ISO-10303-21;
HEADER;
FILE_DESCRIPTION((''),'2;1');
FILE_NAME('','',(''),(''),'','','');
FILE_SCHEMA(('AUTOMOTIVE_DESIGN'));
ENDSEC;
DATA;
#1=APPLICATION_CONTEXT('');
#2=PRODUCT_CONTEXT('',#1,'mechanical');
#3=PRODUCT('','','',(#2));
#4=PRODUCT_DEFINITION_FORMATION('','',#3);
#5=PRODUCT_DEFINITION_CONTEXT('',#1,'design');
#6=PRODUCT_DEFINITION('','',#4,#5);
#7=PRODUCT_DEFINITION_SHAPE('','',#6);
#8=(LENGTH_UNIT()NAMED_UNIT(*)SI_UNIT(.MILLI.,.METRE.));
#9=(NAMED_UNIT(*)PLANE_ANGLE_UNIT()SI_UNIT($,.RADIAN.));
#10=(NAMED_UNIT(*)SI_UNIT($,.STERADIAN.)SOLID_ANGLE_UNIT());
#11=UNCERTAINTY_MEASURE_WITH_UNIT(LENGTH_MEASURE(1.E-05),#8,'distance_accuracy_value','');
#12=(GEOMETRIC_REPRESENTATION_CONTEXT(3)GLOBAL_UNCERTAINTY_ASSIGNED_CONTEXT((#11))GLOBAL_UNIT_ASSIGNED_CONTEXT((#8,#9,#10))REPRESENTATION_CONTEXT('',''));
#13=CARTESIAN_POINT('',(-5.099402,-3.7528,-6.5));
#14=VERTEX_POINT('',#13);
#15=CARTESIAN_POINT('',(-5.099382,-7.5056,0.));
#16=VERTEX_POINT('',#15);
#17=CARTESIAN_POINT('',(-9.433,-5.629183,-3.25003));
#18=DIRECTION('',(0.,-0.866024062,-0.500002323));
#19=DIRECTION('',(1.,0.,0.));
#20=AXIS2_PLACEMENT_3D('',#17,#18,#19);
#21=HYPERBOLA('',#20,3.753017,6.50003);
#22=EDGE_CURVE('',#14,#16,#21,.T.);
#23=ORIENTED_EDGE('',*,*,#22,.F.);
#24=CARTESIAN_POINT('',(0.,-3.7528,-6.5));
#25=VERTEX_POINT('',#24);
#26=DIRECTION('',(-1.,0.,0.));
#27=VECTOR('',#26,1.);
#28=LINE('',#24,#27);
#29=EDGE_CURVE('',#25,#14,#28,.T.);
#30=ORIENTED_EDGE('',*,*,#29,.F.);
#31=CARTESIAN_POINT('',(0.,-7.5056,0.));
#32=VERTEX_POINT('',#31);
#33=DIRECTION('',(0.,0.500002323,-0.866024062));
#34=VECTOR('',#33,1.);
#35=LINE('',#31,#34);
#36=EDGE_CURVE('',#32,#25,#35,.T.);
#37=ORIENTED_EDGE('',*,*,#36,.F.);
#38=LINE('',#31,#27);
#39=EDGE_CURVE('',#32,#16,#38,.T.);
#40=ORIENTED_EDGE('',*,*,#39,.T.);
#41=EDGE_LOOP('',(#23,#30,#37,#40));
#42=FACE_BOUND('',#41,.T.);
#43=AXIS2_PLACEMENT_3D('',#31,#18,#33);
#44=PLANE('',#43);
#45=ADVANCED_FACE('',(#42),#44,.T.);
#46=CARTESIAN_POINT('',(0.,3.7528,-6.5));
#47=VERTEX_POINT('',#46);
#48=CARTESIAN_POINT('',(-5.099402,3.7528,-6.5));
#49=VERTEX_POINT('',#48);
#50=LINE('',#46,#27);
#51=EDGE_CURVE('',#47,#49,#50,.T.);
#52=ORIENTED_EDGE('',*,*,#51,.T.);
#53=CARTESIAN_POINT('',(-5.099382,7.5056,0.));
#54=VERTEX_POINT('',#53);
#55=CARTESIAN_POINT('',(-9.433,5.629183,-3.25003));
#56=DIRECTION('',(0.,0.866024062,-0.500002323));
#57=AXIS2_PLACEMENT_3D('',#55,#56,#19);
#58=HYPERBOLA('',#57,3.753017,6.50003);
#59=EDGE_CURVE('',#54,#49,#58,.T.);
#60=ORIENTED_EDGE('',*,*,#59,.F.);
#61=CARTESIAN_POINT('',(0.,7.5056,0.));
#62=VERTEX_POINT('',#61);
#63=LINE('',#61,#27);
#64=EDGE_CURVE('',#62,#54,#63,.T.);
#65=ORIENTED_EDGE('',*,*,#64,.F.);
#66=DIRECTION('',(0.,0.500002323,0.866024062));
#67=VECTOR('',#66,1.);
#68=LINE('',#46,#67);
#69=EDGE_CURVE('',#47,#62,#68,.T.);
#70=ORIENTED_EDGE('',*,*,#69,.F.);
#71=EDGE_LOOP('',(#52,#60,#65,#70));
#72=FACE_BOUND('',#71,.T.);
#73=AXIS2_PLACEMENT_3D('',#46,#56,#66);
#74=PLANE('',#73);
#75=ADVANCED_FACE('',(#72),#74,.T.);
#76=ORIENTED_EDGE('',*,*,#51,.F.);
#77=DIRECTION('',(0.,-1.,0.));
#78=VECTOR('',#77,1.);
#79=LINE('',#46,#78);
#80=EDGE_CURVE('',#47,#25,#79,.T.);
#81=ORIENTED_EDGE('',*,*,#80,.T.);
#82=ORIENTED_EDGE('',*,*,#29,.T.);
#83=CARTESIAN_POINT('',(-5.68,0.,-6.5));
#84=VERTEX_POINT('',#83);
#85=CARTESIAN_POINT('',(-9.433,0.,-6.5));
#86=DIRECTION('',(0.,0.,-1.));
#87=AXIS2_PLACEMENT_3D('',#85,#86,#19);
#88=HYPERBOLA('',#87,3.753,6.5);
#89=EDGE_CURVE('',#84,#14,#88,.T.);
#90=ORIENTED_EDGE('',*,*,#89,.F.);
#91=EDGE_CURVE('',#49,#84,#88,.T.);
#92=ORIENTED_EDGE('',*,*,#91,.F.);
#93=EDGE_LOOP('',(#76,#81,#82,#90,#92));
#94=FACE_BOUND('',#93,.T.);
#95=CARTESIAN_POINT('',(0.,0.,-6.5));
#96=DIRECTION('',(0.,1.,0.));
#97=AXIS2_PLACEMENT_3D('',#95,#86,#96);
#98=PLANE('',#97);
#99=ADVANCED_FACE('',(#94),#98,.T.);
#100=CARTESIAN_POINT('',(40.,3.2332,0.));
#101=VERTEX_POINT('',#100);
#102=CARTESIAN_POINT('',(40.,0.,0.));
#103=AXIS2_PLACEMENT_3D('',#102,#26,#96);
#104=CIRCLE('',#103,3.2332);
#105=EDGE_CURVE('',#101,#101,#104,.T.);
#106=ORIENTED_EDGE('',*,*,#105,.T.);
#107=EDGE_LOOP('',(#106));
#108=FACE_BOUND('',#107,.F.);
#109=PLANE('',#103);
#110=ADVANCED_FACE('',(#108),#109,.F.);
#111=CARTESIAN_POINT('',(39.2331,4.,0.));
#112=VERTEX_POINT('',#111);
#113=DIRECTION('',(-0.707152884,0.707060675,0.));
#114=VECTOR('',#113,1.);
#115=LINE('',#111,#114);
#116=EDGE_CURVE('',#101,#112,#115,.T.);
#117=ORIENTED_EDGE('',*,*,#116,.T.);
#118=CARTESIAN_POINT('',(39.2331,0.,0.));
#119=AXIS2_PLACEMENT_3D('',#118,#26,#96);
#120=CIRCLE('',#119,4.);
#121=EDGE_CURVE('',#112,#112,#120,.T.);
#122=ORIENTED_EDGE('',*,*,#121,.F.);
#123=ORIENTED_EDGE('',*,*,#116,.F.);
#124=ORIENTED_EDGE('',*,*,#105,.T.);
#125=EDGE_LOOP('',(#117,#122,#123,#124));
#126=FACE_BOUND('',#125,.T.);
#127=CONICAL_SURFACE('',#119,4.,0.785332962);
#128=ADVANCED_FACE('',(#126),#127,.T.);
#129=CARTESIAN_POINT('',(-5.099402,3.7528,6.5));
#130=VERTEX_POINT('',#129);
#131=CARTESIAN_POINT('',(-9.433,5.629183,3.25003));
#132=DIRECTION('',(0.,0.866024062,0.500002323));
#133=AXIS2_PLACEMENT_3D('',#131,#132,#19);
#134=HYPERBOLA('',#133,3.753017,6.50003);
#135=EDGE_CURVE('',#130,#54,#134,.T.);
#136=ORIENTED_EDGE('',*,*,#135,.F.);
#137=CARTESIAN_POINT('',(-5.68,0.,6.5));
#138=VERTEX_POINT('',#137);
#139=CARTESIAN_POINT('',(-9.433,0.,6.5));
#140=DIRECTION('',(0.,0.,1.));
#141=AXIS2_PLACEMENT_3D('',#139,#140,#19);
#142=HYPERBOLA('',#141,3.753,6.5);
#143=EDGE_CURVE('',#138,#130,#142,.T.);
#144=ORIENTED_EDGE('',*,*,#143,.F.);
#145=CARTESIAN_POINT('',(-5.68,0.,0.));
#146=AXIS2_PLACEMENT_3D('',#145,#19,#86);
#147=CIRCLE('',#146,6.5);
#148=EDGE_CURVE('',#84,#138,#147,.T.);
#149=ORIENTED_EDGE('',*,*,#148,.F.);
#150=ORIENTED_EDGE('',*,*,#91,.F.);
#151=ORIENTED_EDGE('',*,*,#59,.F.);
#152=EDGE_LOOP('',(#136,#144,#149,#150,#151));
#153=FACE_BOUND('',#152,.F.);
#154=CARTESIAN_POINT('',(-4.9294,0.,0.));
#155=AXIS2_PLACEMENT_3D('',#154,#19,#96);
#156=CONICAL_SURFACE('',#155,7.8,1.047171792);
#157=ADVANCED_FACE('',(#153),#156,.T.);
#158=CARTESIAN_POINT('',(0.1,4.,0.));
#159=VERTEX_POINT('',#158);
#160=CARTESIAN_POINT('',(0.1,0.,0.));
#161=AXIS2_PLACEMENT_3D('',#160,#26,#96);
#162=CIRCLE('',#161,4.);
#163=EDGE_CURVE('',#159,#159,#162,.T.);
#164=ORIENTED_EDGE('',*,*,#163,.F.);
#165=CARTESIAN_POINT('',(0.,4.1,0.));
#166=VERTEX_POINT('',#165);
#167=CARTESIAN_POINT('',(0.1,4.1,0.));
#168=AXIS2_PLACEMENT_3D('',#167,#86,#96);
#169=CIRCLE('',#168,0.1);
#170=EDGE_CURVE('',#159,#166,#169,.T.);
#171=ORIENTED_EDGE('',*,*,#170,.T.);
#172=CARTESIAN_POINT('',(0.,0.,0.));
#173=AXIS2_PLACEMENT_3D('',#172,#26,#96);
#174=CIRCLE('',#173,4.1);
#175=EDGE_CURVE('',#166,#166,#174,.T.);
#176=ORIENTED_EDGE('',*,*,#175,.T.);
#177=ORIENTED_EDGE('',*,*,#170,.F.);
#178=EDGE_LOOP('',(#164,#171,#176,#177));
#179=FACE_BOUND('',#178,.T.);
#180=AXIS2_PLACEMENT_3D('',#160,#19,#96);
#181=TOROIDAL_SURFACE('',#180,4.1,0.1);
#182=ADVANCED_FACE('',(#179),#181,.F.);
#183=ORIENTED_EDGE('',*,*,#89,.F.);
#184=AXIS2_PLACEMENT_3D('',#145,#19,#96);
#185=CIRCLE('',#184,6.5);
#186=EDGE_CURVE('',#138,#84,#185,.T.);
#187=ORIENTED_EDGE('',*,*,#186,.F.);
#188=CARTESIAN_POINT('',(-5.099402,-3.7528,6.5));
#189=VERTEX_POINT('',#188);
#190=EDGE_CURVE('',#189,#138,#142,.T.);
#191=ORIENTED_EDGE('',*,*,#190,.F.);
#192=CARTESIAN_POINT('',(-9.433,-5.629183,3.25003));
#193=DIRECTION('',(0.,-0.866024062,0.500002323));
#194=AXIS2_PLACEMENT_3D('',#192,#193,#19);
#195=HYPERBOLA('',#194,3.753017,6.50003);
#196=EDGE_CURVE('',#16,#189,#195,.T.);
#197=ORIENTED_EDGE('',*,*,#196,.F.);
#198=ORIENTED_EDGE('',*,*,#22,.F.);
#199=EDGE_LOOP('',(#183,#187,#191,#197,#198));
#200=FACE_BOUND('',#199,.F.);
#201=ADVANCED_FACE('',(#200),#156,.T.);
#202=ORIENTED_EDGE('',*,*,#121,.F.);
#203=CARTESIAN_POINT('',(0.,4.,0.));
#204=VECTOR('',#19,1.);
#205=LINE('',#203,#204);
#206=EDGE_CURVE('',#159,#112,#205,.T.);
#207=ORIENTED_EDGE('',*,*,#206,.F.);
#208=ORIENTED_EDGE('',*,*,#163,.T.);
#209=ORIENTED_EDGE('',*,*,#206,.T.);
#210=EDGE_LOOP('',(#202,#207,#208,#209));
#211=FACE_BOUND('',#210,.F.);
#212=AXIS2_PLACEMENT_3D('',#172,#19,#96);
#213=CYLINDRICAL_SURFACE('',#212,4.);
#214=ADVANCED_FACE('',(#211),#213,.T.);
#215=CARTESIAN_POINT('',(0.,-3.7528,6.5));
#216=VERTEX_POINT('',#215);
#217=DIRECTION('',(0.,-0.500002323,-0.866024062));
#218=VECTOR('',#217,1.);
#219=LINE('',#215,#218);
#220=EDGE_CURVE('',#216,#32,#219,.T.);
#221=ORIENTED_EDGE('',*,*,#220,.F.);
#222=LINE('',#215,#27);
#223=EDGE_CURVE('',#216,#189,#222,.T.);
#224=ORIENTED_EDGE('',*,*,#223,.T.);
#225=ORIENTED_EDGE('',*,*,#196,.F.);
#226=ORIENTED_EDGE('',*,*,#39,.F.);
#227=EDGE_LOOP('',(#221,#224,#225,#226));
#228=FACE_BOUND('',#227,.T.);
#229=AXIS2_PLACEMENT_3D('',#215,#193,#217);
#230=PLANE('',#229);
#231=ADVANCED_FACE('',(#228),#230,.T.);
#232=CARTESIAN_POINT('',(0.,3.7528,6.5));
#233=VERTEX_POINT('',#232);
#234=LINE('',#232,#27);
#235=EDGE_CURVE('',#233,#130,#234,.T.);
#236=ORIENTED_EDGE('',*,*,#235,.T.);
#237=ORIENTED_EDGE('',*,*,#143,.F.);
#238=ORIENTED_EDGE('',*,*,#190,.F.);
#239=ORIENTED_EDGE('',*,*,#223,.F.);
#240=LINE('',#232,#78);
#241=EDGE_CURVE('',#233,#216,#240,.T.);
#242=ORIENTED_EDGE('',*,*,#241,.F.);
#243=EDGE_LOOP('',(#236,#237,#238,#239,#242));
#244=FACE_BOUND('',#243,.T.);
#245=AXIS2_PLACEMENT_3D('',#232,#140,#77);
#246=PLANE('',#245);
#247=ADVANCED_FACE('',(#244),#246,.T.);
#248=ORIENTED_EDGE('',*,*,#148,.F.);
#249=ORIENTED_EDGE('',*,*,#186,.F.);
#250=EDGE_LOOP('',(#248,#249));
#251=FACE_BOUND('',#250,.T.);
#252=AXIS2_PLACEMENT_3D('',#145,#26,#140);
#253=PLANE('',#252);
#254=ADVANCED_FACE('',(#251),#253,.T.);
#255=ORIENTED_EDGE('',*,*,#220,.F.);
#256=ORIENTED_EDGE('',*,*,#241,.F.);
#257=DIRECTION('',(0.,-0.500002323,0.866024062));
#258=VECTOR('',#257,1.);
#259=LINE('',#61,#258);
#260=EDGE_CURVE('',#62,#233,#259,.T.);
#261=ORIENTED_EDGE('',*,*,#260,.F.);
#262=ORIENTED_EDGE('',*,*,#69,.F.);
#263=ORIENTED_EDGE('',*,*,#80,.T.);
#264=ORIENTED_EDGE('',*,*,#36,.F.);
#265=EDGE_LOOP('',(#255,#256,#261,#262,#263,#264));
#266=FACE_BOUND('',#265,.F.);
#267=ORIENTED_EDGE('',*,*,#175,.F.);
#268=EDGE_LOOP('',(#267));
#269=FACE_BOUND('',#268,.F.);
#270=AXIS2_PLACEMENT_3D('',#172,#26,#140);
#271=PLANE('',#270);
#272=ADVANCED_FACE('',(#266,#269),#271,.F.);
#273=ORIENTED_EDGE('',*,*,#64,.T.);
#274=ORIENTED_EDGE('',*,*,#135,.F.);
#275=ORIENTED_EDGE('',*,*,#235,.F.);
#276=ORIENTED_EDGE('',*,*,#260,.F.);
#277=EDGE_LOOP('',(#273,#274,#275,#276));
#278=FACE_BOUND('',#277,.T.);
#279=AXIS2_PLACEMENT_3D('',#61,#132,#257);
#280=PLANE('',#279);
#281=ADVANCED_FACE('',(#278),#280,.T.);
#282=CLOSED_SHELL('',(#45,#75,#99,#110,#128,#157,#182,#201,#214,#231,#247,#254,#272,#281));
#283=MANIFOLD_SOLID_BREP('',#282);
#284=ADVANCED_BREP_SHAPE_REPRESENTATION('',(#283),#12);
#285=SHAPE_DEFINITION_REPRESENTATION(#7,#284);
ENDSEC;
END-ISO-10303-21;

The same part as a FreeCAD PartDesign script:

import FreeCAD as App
import Part
import Sketcher
Q = App.Units.Quantity


def edges_at(feature, points):
    """Names of the edges that pass closest to the given points."""
    edges = feature.Shape.Edges
    near = lambda p: min(range(len(edges)), key=lambda i: edges[i].distToShape(Part.Vertex(*p))[0])
    return sorted({f"Edge{near(p) + 1}" for p in points})

doc = App.newDocument("Part")
params = doc.addObject("Spreadsheet::Sheet", "Params")
for row, (alias, value) in enumerate([
    ("sketch1_width", "40 mm"),
    ("sketch1_height", "4 mm"),
    ("revolution_angle", "360 deg"),
    ("pad1_length", "5.68 mm"),
    ("sketch3_height", "1.3 mm"),
    ("groove_angle", "360 deg"),
    ("chamfer_size", "0.7668 mm"),
    ("chamfer_size2", "0.7669 mm"),
    ("fillet_radius", "0.1 mm"),
], start=1):
    params.set(f"A{row}", alias)
    params.set(f"B{row}", "=" + value)
    params.setAlias(f"B{row}", alias)

body = doc.addObject("PartDesign::Body", "Body")

sketch1 = body.newObject("Sketcher::SketchObject", "Sketch")
sketch1.AttachmentSupport = (doc.getObject("XY_Plane"), [""])
sketch1.MapMode = "FlatFace"
sketch1.addGeometry(Part.LineSegment(App.Vector(40, 4, 0), App.Vector(0, 4, 0)), False)
sketch1.addGeometry(Part.LineSegment(App.Vector(0, 4, 0), App.Vector(0, 0, 0)), False)
sketch1.addGeometry(Part.LineSegment(App.Vector(0, 0, 0), App.Vector(40, 0, 0)), False)
sketch1.addGeometry(Part.LineSegment(App.Vector(40, 0, 0), App.Vector(40, 4, 0)), False)
sketch1.addConstraint(Sketcher.Constraint("Coincident", 0, 2, 1, 1))
sketch1.addConstraint(Sketcher.Constraint("Coincident", 1, 2, 2, 1))
sketch1.addConstraint(Sketcher.Constraint("Coincident", 2, 2, 3, 1))
sketch1.addConstraint(Sketcher.Constraint("Coincident", 3, 2, 0, 1))
sketch1.addConstraint(Sketcher.Constraint("Horizontal", 0))
sketch1.addConstraint(Sketcher.Constraint("Vertical", 1))
sketch1.addConstraint(Sketcher.Constraint("Horizontal", 2))
sketch1.addConstraint(Sketcher.Constraint("Vertical", 3))
sketch1.addConstraint(Sketcher.Constraint("Coincident", 1, 2, -1, 1))
sketch1.addConstraint(Sketcher.Constraint("DistanceX", 0, 2, 0, 1, 40.0))
sketch1.addConstraint(Sketcher.Constraint("DistanceY", 1, 2, 1, 1, 4.0))
sketch1.setExpression("Constraints[9]", "Params.sketch1_width")
sketch1.setExpression("Constraints[10]", "Params.sketch1_height")
revolution = body.newObject("PartDesign::Revolution", "Revolution")
revolution.Profile = sketch1
revolution.ReferenceAxis = (sketch1, ["H_Axis"])
revolution.setExpression("Angle", "Params.revolution_angle")

sketch2 = body.newObject("Sketcher::SketchObject", "Sketch001")
sketch2.AttachmentSupport = (doc.getObject("YZ_Plane"), [""])
sketch2.MapMode = "FlatFace"
sketch2.addGeometry(Part.LineSegment(App.Vector(4, -6, 0), App.Vector(-4, -6, 0)), False)
sketch2.addGeometry(Part.LineSegment(App.Vector(-4, -6, 0), App.Vector(-8, 0, 0)), False)
sketch2.addGeometry(Part.LineSegment(App.Vector(-8, 0, 0), App.Vector(-4, 6, 0)), False)
sketch2.addGeometry(Part.LineSegment(App.Vector(-4, 6, 0), App.Vector(4, 6, 0)), False)
sketch2.addGeometry(Part.LineSegment(App.Vector(4, 6, 0), App.Vector(8, 0, 0)), False)
sketch2.addGeometry(Part.LineSegment(App.Vector(8, 0, 0), App.Vector(4, -6, 0)), False)
sketch2.addConstraint(Sketcher.Constraint("Coincident", 0, 2, 1, 1))
sketch2.addConstraint(Sketcher.Constraint("Coincident", 1, 2, 2, 1))
sketch2.addConstraint(Sketcher.Constraint("Coincident", 2, 2, 3, 1))
sketch2.addConstraint(Sketcher.Constraint("Coincident", 3, 2, 4, 1))
sketch2.addConstraint(Sketcher.Constraint("Coincident", 4, 2, 5, 1))
sketch2.addConstraint(Sketcher.Constraint("Coincident", 5, 2, 0, 1))
sketch2.addConstraint(Sketcher.Constraint("Horizontal", 0))
sketch2.addConstraint(Sketcher.Constraint("Horizontal", 3))
sketch2.addConstraint(Sketcher.Constraint("Symmetric", 0, 2, 3, 2, -1, 1))
sketch2.addConstraint(Sketcher.Constraint("Symmetric", 1, 2, 4, 2, -1, 1))
sketch2.addConstraint(Sketcher.Constraint("PointOnObject", 1, 2, -1))
sketch2.addConstraint(Sketcher.Constraint("Parallel", 2, 5))
sketch2.addConstraint(Sketcher.Constraint("Vertical", 0, 2, 2, 2))
sketch2.addConstraint(Sketcher.Constraint("DistanceY", 0, 2, 2, 2, 13.0))
sketch2.addConstraint(Sketcher.Constraint("Angle", 1, Q("120.0002 deg")))
sketch2.addConstraint(Sketcher.Constraint("DistanceX", 0, 2, 0, 1, 7.5056))
pad1 = body.newObject("PartDesign::Pad", "Pad")
pad1.Profile = sketch2
pad1.setExpression("Length", "Params.pad1_length")
pad1.Reversed = True

sketch3 = body.newObject("Sketcher::SketchObject", "Sketch002")
sketch3.AttachmentSupport = (doc.getObject("XY_Plane"), [""])
sketch3.MapMode = "FlatFace"
sketch3.addGeometry(Part.LineSegment(App.Vector(-5.7, 6.5, 0), App.Vector(-4.9, 7.8, 0)), False)
sketch3.addGeometry(Part.LineSegment(App.Vector(-4.9, 7.8, 0), App.Vector(-5.7, 7.8, 0)), False)
sketch3.addGeometry(Part.LineSegment(App.Vector(-5.7, 7.8, 0), App.Vector(-5.7, 6.5, 0)), False)
sketch3.addConstraint(Sketcher.Constraint("Coincident", 0, 2, 1, 1))
sketch3.addConstraint(Sketcher.Constraint("Coincident", 1, 2, 2, 1))
sketch3.addConstraint(Sketcher.Constraint("Coincident", 2, 2, 0, 1))
sketch3.addConstraint(Sketcher.Constraint("Horizontal", 1))
sketch3.addConstraint(Sketcher.Constraint("Vertical", 2))
sketch3.addConstraint(Sketcher.Constraint("DistanceX", 1, 2, -1, 1, 5.68))
sketch3.addConstraint(Sketcher.Constraint("DistanceY", 2, 2, 2, 1, 1.3))
sketch3.addConstraint(Sketcher.Constraint("DistanceY", -1, 1, 0, 2, 7.8))
sketch3.addConstraint(Sketcher.Constraint("DistanceX", 1, 2, 1, 1, 0.7506))
sketch3.setExpression("Constraints[6]", "Params.sketch3_height")
groove = body.newObject("PartDesign::Groove", "Groove")
groove.Profile = sketch3
groove.ReferenceAxis = (sketch3, ["H_Axis"])
groove.setExpression("Angle", "Params.groove_angle")
doc.recompute()

chamfer = body.newObject("PartDesign::Chamfer", "Chamfer")
chamfer.Base = (groove, edges_at(groove, [(40, -4, 0)]))
chamfer.ChamferType = "Two distances"
chamfer.setExpression("Size", "Params.chamfer_size")
chamfer.setExpression("Size2", "Params.chamfer_size2")
doc.recompute()

fillet = body.newObject("PartDesign::Fillet", "Fillet")
fillet.Base = (chamfer, edges_at(chamfer, [(0, -4, 0)]))
fillet.setExpression("Radius", "Params.fillet_radius")

doc.recompute()
